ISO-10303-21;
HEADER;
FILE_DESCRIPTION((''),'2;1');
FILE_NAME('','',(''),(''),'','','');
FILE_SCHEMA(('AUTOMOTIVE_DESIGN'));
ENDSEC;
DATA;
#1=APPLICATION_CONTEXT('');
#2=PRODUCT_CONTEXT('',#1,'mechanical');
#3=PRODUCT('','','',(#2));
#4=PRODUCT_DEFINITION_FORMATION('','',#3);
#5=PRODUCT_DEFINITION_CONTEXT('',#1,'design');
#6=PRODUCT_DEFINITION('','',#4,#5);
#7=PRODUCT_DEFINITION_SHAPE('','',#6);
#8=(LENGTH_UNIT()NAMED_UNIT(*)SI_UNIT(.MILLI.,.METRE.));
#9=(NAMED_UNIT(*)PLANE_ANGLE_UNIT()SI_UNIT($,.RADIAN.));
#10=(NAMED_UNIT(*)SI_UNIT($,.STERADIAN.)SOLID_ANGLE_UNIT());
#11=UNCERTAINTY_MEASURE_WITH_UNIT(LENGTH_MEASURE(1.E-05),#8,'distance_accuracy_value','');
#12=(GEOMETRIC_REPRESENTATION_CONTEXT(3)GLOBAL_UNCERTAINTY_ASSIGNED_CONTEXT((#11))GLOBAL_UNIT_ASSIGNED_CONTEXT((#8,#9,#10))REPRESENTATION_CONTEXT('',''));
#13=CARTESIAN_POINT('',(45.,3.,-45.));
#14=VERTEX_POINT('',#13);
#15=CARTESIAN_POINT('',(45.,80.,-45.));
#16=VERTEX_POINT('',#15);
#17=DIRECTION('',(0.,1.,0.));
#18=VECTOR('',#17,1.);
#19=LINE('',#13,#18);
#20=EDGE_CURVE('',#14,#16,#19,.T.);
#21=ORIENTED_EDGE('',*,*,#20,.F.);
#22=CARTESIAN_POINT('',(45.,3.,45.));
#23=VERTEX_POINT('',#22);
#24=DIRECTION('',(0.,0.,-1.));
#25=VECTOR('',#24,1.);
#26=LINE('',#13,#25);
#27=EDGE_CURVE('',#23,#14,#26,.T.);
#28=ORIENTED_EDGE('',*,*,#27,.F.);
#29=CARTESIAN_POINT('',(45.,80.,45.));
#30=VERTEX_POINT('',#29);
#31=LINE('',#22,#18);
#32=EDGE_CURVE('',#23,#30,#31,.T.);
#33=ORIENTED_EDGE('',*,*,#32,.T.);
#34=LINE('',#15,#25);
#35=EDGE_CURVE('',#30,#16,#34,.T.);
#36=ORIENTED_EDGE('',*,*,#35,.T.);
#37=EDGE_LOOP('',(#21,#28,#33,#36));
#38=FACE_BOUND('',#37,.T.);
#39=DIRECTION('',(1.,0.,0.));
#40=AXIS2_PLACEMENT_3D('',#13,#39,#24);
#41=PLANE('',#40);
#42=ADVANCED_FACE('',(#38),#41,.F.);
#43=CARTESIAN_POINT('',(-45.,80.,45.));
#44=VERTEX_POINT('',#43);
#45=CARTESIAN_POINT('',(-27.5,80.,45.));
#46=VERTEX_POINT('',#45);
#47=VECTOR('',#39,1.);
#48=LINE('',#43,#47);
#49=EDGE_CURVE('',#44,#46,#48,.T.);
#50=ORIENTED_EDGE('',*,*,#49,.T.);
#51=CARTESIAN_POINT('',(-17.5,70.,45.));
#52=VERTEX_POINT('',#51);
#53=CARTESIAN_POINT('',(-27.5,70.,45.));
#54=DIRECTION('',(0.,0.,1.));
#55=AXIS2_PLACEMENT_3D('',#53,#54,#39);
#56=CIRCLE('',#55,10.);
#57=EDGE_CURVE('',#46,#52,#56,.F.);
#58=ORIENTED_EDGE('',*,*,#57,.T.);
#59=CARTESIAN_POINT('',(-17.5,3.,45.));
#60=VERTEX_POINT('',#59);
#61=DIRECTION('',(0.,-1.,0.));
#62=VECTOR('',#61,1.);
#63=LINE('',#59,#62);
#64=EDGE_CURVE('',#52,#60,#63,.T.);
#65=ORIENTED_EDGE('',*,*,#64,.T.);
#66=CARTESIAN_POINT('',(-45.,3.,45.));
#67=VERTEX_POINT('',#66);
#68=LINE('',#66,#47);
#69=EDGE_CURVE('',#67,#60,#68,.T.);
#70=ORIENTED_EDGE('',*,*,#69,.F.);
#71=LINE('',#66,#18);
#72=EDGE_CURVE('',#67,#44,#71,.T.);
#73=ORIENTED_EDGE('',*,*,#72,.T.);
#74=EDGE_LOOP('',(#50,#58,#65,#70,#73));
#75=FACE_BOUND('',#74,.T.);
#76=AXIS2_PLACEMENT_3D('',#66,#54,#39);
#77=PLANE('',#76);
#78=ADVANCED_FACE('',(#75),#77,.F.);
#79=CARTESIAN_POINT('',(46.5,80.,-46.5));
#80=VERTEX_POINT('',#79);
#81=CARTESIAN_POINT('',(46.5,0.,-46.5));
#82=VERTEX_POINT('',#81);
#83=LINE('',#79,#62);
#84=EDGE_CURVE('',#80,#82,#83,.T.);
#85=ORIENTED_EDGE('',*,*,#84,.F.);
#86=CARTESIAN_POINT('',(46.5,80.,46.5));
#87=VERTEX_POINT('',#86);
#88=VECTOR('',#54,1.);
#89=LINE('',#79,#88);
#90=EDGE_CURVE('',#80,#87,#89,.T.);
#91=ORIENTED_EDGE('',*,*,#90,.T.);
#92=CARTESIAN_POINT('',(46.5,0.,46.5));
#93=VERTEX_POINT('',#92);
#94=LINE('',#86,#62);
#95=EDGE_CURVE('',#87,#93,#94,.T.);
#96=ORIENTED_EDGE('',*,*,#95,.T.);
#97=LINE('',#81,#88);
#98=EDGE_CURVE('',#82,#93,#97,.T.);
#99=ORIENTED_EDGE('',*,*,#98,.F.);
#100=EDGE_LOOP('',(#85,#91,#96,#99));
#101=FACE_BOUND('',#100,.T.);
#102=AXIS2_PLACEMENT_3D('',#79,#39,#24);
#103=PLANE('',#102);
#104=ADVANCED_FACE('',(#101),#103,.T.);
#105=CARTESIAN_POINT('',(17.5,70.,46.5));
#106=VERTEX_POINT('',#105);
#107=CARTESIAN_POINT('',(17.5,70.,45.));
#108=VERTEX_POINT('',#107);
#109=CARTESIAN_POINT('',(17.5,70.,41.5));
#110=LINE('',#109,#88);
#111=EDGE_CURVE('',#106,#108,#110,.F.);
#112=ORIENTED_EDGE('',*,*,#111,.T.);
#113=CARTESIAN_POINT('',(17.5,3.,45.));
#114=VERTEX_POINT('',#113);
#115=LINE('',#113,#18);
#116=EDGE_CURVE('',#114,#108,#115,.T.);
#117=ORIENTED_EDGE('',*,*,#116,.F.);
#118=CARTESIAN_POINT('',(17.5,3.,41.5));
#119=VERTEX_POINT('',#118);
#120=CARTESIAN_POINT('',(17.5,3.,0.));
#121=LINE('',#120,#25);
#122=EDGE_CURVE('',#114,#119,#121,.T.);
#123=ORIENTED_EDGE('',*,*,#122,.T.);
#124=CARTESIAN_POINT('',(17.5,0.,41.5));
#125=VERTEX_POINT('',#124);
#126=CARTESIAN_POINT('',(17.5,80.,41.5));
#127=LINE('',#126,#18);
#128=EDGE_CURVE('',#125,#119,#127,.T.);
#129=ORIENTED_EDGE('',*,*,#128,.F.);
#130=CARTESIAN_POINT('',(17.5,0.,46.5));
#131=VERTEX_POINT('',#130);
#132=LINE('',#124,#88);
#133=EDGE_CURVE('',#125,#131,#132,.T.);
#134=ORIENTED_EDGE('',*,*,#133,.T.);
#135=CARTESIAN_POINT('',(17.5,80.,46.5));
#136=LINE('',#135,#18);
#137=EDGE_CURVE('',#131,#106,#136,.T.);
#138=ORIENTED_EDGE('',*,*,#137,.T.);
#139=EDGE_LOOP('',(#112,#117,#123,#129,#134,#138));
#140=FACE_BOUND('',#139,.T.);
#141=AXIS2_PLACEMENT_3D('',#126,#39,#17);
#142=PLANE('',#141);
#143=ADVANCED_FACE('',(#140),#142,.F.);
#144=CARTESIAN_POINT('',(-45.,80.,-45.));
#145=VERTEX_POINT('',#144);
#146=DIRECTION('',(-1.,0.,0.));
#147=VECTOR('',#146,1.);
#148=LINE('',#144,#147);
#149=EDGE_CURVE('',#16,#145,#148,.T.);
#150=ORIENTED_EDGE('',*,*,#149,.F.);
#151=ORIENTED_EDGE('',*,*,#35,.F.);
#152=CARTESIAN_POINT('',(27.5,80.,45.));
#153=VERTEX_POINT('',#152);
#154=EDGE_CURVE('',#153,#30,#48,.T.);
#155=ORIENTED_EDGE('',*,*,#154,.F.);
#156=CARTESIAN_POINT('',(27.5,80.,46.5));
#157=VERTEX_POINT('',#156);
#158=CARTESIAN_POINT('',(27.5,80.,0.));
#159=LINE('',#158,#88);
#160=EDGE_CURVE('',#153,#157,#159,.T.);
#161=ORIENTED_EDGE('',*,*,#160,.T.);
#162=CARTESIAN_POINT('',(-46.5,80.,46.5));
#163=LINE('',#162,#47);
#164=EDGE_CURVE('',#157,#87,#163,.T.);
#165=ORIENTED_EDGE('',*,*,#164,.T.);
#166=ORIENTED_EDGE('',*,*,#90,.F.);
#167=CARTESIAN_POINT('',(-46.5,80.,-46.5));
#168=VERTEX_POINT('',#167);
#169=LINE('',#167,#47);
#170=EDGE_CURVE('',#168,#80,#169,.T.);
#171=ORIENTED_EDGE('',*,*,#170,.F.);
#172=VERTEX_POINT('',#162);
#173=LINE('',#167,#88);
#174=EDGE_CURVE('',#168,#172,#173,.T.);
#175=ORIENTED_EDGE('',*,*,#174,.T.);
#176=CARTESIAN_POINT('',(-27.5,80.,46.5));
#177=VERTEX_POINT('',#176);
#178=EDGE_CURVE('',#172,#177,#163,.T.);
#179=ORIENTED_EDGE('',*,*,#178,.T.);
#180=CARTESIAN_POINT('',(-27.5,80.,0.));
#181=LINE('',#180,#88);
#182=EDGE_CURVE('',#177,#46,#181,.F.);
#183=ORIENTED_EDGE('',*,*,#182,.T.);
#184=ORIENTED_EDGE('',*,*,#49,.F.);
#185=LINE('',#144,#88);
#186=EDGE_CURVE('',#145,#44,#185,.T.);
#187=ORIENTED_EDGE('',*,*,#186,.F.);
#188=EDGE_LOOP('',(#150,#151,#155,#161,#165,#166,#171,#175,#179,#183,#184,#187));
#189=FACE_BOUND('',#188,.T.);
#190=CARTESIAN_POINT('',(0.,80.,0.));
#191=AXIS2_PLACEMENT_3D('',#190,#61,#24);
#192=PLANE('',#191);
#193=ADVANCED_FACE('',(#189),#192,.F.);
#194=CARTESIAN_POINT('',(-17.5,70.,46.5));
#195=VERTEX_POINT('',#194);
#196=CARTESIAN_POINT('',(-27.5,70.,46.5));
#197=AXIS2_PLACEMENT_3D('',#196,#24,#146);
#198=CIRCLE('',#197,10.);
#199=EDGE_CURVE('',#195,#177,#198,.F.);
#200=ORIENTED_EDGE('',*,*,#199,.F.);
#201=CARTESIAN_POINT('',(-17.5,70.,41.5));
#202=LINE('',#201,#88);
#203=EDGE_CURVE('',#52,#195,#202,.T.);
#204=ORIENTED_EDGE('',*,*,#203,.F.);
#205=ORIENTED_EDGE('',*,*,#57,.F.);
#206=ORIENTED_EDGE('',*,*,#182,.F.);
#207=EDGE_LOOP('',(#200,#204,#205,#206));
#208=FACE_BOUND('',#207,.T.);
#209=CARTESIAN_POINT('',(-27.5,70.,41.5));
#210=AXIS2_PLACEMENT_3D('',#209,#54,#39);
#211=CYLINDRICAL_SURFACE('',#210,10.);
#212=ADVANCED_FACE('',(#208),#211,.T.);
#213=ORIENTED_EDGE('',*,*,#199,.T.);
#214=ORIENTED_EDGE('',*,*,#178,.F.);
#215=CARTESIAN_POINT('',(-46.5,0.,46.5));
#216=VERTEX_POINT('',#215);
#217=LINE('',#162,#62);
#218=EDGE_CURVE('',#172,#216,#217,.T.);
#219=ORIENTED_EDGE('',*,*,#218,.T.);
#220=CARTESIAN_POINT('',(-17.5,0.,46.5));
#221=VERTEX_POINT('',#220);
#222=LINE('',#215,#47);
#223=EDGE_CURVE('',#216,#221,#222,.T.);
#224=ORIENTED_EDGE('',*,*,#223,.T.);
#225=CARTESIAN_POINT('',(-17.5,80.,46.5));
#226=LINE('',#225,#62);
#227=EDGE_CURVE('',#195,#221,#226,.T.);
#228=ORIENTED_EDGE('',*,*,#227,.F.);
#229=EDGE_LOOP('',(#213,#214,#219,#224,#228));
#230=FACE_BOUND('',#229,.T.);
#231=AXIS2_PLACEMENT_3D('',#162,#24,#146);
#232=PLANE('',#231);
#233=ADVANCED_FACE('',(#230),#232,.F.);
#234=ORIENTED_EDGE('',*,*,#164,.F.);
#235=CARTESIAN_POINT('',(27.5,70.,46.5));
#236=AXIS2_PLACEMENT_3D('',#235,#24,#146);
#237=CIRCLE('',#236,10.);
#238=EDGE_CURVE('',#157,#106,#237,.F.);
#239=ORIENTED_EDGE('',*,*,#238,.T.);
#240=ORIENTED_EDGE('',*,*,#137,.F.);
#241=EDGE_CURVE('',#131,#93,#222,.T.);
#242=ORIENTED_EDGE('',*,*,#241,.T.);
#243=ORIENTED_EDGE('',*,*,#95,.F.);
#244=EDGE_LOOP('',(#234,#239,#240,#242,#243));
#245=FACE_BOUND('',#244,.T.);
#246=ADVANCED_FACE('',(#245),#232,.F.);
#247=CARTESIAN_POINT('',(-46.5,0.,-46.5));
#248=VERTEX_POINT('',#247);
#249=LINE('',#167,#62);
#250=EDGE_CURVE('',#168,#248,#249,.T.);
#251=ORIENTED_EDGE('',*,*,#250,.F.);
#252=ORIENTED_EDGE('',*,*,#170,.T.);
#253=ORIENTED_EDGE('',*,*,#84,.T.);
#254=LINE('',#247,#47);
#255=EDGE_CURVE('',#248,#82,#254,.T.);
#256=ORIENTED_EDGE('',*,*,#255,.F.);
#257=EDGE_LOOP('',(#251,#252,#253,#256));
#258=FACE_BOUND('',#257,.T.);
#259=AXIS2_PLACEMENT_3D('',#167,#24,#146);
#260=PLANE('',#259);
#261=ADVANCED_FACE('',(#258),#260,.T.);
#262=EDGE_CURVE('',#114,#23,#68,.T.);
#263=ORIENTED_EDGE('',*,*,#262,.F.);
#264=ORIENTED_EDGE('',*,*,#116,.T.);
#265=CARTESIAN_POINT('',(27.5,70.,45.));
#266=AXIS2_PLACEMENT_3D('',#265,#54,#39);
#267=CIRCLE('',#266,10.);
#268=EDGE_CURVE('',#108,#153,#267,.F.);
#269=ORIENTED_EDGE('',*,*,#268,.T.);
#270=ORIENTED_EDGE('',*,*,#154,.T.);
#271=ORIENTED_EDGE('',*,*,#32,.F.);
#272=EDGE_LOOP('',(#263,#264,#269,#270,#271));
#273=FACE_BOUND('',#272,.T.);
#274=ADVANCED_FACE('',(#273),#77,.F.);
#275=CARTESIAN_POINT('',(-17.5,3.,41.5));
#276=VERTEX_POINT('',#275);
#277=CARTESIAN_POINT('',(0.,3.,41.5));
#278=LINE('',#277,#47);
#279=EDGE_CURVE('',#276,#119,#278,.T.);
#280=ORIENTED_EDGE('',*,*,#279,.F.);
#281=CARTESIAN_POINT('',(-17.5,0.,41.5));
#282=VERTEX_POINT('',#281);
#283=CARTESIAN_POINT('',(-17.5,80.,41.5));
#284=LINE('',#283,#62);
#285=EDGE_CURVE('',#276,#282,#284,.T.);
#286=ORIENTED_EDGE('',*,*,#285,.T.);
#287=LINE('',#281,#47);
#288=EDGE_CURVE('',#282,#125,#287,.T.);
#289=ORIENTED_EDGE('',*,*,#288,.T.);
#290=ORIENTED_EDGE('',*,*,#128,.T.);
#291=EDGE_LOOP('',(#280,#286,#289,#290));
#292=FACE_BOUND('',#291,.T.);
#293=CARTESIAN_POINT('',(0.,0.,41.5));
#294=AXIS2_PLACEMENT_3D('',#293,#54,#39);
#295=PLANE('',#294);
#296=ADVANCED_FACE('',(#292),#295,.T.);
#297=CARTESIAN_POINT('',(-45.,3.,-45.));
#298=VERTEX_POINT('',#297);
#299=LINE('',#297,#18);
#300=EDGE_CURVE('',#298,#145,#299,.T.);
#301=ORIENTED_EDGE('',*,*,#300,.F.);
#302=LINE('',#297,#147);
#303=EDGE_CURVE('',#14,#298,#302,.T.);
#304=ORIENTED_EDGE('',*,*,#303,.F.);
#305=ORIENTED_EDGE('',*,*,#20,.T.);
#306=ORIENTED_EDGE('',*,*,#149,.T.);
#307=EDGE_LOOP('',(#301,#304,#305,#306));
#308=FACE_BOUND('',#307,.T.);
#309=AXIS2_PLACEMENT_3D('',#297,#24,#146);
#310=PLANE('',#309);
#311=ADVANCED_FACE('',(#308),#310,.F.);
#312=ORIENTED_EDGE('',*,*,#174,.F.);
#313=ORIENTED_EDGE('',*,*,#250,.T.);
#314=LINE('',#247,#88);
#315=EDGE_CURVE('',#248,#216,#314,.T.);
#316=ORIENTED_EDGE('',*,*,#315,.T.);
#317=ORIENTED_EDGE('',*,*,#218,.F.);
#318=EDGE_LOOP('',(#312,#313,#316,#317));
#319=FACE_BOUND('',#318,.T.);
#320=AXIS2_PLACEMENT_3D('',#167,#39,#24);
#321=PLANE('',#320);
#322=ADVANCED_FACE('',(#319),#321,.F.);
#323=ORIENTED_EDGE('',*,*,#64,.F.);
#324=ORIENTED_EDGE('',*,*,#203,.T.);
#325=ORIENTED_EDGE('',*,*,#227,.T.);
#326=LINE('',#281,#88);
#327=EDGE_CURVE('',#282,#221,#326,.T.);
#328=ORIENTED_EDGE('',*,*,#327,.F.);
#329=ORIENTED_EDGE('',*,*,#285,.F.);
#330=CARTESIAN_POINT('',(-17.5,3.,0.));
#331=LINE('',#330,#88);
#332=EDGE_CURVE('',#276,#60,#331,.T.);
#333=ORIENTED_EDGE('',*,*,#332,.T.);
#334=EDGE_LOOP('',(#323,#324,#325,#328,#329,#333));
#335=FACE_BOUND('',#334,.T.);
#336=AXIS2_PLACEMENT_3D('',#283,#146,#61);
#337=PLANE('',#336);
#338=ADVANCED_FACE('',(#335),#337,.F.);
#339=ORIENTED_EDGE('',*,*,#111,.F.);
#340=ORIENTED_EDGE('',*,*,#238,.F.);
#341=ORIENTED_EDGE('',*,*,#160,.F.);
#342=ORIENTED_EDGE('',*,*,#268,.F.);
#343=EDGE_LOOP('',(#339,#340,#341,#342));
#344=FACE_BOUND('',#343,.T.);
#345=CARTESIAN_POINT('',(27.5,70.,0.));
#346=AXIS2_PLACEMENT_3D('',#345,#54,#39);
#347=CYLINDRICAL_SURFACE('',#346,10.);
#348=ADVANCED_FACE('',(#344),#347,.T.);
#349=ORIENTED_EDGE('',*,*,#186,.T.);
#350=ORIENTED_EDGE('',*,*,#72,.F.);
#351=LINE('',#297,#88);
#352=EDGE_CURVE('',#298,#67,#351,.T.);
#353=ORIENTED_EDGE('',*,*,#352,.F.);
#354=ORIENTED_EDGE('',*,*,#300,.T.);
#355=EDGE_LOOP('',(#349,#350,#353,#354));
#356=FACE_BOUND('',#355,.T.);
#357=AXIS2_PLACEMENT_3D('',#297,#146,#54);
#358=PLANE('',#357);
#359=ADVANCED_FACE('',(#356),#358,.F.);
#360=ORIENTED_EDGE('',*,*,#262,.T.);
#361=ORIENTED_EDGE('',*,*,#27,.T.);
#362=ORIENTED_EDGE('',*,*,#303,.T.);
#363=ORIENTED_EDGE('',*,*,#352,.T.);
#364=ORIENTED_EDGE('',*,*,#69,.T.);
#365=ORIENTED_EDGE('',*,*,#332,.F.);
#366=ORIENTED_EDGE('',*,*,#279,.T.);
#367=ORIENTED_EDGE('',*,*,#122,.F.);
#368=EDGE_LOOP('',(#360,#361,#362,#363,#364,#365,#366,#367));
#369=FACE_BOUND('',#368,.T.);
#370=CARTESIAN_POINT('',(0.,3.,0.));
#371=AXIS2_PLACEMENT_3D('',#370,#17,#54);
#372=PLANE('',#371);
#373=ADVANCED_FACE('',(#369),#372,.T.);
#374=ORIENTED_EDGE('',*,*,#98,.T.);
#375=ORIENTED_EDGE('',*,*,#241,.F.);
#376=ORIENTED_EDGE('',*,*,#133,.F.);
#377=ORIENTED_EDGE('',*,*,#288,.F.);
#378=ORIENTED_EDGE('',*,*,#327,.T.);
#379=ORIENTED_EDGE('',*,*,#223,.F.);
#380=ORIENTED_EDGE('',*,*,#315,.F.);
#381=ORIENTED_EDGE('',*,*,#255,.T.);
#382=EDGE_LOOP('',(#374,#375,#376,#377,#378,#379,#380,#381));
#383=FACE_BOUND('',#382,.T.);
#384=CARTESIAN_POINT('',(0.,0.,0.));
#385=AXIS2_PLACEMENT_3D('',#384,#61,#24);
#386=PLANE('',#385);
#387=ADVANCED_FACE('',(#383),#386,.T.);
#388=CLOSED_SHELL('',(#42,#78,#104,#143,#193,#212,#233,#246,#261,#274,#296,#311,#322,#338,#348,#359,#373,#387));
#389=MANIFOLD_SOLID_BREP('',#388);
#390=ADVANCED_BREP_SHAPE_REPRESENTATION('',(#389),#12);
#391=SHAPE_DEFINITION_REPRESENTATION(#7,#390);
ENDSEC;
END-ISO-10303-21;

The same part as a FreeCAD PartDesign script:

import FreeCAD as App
import Part
import Sketcher

V = App.Vector
Q = App.Units.Quantity


def edges_at(feature, points):
    """Names of the edges that pass closest to the given points."""
    edges = feature.Shape.Edges
    near = lambda p: min(range(len(edges)), key=lambda i: edges[i].distToShape(Part.Vertex(*p))[0])
    return sorted({f"Edge{near(p) + 1}" for p in points})


def add_polygon(sketch, points):
    """Adds a closed chain of lines whose ends are joined by coincident constraints."""
    first, n = sketch.GeometryCount, len(points)
    for a, b in zip(points, points[1:] + points[:1]):
        sketch.addGeometry(Part.LineSegment(App.Vector(*a, 0), App.Vector(*b, 0)), False)
    for i in range(n):
        sketch.addConstraint(Sketcher.Constraint("Coincident", first + i, 2, first + (i + 1) % n, 1))

doc = App.newDocument("Part")
body = doc.addObject("PartDesign::Body", "Body")

# Sketch on XZ plane
sketch1 = doc.addObject("Sketcher::SketchObject", "Sketch")
body.addObject(sketch1)
sketch1.AttachmentSupport = (doc.XZ_Plane, [""])
sketch1.MapMode = "FlatFace"
add_polygon(sketch1, [(-46, -46), (-46, 46), (46, 46), (46, -46)])  # lines 0-3
sketch1.addConstraint([
    Sketcher.Constraint("Vertical", 0),
    Sketcher.Constraint("Horizontal", 1),
    Sketcher.Constraint("Vertical", 2),
    Sketcher.Constraint("Horizontal", 3),
    Sketcher.Constraint("Symmetric", 0, 2, 2, 2, -1, 1),
    Sketcher.Constraint("Equal", 3, 0),
    Sketcher.Constraint("DistanceX", 1, 1, 1, 2, Q("93 mm")),
])
pad1 = doc.addObject("PartDesign::Pad", "Pad")
body.addObject(pad1)
pad1.Profile = sketch1
pad1.Length = 80
pad1.Reversed = True

# Sketch on XZ plane
sketch2 = doc.addObject("Sketcher::SketchObject", "Sketch001")
body.addObject(sketch2)
sketch2.AttachmentSupport = (doc.XZ_Plane, [""])
sketch2.MapMode = "FlatFace"
sketch2.AttachmentOffset = App.Placement(V(0, 0, -80), App.Rotation())
add_polygon(sketch2, [(-45, -45), (-45, 45), (45, 45), (45, -45)])  # lines 0-3
sketch2.addConstraint([
    Sketcher.Constraint("Vertical", 0),
    Sketcher.Constraint("Horizontal", 1),
    Sketcher.Constraint("Vertical", 2),
    Sketcher.Constraint("Horizontal", 3),
    Sketcher.Constraint("Symmetric", 0, 2, 2, 2, -1, 1),
    Sketcher.Constraint("Equal", 3, 0),
    Sketcher.Constraint("DistanceX", 1, 1, 1, 2, Q("90 mm")),
])
pocket1 = doc.addObject("PartDesign::Pocket", "Pocket")
body.addObject(pocket1)
pocket1.Profile = sketch2
pocket1.Length = 77
pocket1.Reversed = True

# Sketch on XY plane
sketch3 = doc.addObject("Sketcher::SketchObject", "Sketch002")
body.addObject(sketch3)
sketch3.AttachmentSupport = (doc.XY_Plane, [""])
sketch3.MapMode = "FlatFace"
sketch3.AttachmentOffset = App.Placement(V(0, 0, 46.5), App.Rotation())
add_polygon(sketch3, [(-18, 80), (-18, 0), (18, 0), (18, 80)])  # lines 0-3
sketch3.addConstraint([
    Sketcher.Constraint("Vertical", 0),
    Sketcher.Constraint("Horizontal", 1),
    Sketcher.Constraint("Vertical", 2),
    Sketcher.Constraint("Horizontal", 3),
    Sketcher.Constraint("Symmetric", 0, 2, 1, 2, -1, 1),
    Sketcher.Constraint("DistanceX", 1, 1, 1, 2, Q("35 mm")),
    Sketcher.Constraint("DistanceY", 0, 2, 0, 1, Q("80 mm")),
])
pocket2 = doc.addObject("PartDesign::Pocket", "Pocket001")
body.addObject(pocket2)
pocket2.Profile = sketch3
pocket2.Length = 5
doc.recompute()

fillet = doc.addObject("PartDesign::Fillet", "Fillet")
body.addObject(fillet)
fillet.Base = (pocket2, edges_at(pocket2, [(-17.5, 80, 45.75), (17.5, 80, 45.75)]))
fillet.Radius = 10

doc.recompute()
